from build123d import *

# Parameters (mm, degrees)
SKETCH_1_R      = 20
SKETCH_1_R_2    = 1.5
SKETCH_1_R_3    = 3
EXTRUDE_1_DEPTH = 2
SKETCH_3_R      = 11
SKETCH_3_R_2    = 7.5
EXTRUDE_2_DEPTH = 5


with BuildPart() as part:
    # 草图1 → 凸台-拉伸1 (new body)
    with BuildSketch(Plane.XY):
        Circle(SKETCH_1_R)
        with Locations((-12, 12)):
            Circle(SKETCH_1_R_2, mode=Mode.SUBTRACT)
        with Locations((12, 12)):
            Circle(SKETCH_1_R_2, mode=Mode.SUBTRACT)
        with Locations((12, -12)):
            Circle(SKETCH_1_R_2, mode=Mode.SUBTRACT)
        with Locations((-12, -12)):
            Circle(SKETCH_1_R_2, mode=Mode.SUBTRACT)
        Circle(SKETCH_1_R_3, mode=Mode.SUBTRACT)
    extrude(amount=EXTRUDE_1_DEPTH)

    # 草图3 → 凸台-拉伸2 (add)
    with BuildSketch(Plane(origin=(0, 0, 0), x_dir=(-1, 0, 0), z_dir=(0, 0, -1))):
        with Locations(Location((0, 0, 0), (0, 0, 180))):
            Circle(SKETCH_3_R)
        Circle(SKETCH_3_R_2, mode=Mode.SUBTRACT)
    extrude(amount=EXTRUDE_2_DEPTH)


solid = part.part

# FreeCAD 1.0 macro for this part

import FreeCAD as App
import Part
import Sketcher
from FreeCAD import Vector

doc = App.newDocument("Part")
body = doc.addObject("PartDesign::Body", "Body")

# Sketch on XY plane
sketch1 = body.newObject("Sketcher::SketchObject", "Sketch")
sketch1.AttachmentSupport = (doc.getObject("XY_Plane"), [""])
sketch1.MapMode = "FlatFace"
sketch1.addGeometry([
    Part.Circle(Vector(0, 0, 0), Vector(0, 0, 1), 20),  # 0
    Part.Circle(Vector(-12, -12, 0), Vector(0, 0, 1), 1.5),  # 1
    Part.Circle(Vector(12, -12, 0), Vector(0, 0, 1), 1.5),  # 2
    Part.Circle(Vector(-12, 12, 0), Vector(0, 0, 1), 1.5),  # 3
    Part.Circle(Vector(0, 0, 0), Vector(0, 0, 1), 3),  # 4
    Part.Circle(Vector(12, 12, 0), Vector(0, 0, 1), 1.5),  # 5
], False)
sketch1.addConstraint([
    Sketcher.Constraint("Coincident", 0, 3, -1, 1),
    Sketcher.Constraint("Coincident", 4, 3, -1, 1),
    Sketcher.Constraint("Equal", 1, 2),
    Sketcher.Constraint("Equal", 2, 3),
    Sketcher.Constraint("Equal", 3, 5),
    Sketcher.Constraint("Symmetric", 2, 3, 3, 3, -1, 1),
    Sketcher.Constraint("Symmetric", 1, 3, 5, 3, -1, 1),
    Sketcher.Constraint("Symmetric", 1, 3, 2, 3, -2),
    Sketcher.Constraint("Diameter", 0, 40.0),
    Sketcher.Constraint("Diameter", 1, 3.0),
    Sketcher.Constraint("Diameter", 4, 6.0),
    Sketcher.Constraint("DistanceX", 1, 3, -1, 1, 12.0),
    Sketcher.Constraint("DistanceY", 1, 3, -1, 1, 12.0),
])
pad1 = body.newObject("PartDesign::Pad", "Pad")
pad1.Profile = sketch1
pad1.Length = 2

# Sketch on XY plane
sketch2 = body.newObject("Sketcher::SketchObject", "Sketch001")
sketch2.AttachmentSupport = (doc.getObject("XY_Plane"), [""])
sketch2.MapMode = "FlatFace"
sketch2.addGeometry([
    Part.Circle(Vector(0, 0, 0), Vector(0, 0, 1), 11),
    Part.Circle(Vector(0, 0, 0), Vector(0, 0, 1), 7.5),
], False)
sketch2.addConstraint([
    Sketcher.Constraint("Coincident", 0, 3, -1, 1),
    Sketcher.Constraint("Coincident", 1, 3, -1, 1),
    Sketcher.Constraint("Diameter", 0, 22.0),
    Sketcher.Constraint("Diameter", 1, 15.0),
])
pad2 = body.newObject("PartDesign::Pad", "Pad001")
pad2.Profile = sketch2
pad2.Length = 5
pad2.Reversed = True

doc.recompute()
